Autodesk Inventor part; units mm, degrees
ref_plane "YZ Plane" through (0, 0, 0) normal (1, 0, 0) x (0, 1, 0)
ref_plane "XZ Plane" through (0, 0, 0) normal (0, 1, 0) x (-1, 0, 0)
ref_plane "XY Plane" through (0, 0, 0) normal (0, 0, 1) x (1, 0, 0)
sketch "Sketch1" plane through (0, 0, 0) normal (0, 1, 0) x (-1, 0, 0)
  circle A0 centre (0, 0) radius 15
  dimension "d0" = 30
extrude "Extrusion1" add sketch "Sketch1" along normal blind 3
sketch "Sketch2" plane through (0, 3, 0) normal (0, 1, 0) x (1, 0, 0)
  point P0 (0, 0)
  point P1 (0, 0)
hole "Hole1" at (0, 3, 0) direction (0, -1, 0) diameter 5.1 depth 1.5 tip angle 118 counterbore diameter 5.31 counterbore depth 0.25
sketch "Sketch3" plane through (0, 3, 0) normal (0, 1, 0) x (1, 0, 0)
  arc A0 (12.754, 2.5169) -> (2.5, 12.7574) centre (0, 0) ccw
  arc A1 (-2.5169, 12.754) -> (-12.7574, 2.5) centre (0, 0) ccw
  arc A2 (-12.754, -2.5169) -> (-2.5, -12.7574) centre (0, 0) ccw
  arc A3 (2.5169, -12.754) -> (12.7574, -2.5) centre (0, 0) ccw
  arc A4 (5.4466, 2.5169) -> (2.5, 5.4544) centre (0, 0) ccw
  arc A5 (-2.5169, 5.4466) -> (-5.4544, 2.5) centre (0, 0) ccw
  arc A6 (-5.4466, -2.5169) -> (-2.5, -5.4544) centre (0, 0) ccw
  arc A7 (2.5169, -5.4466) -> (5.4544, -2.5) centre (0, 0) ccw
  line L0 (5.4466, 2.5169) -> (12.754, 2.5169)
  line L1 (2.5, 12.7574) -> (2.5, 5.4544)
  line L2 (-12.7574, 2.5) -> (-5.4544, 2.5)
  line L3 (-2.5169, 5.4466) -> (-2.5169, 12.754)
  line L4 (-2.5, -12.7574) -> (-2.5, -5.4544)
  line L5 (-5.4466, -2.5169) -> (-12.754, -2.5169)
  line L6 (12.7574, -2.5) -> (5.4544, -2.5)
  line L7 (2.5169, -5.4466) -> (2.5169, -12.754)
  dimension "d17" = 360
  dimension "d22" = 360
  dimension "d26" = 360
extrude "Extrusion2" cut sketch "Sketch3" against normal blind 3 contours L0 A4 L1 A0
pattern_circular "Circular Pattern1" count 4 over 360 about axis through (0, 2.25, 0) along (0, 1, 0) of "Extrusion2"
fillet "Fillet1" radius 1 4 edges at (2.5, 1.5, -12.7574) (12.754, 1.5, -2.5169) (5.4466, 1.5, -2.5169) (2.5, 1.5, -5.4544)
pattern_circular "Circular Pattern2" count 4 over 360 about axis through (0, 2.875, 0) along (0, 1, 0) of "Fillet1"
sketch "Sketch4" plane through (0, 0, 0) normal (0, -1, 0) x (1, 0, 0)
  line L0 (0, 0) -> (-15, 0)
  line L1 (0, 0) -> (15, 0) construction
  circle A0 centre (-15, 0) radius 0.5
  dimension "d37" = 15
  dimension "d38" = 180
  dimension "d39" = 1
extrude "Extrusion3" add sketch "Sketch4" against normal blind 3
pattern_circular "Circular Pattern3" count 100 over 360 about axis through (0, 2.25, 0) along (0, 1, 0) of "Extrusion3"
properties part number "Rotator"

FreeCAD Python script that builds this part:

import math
import FreeCAD as App
import Part
import Sketcher

V = App.Vector
Q = App.Units.Quantity


def edges_at(feature, points):
    """Names of the edges that pass closest to the given points."""
    edges = feature.Shape.Edges
    near = lambda p: min(range(len(edges)), key=lambda i: edges[i].distToShape(Part.Vertex(*p))[0])
    return sorted({f"Edge{near(p) + 1}" for p in points})

doc = App.newDocument("Part")
body = doc.addObject("PartDesign::Body", "Body")

# Sketch on XZ plane
sketch1 = body.newObject("Sketcher::SketchObject", "Sketch")
sketch1.AttachmentSupport = (doc.getObject("XZ_Plane"), [""])
sketch1.MapMode = "FlatFace"
sketch1.addGeometry(Part.Circle(V(0, 0, 0), V(0, 0, 1), 15), False)
sketch1.addConstraint(Sketcher.Constraint("Coincident", 0, 3, -1, 1))
sketch1.addConstraint(Sketcher.Constraint("Diameter", 0, Q("30 mm")))
pad1 = body.newObject("PartDesign::Pad", "Pad")
pad1.Profile = sketch1
pad1.Length = 3
pad1.Reversed = True

# Sketch on XZ plane
sketch2 = body.newObject("Sketcher::SketchObject", "Sketch001")
sketch2.AttachmentSupport = (doc.getObject("XZ_Plane"), [""])
sketch2.MapMode = "FlatFace"
sketch2.AttachmentOffset = App.Placement(V(0, 0, -3), App.Rotation())
sketch2.addGeometry(Part.Circle(V(0, 0, 0), V(0, 0, 1), 2.5), False)
sketch2.addConstraint(Sketcher.Constraint("Coincident", 0, 3, -1, 1))
sketch2.addConstraint(Sketcher.Constraint("Diameter", 0, Q("5.1 mm")))
doc.recompute()
hole = body.newObject("PartDesign::Hole", "Hole")
hole.Profile = sketch2
hole.ThreadType = "None"
hole.Diameter = 5.1
hole.DepthType = "Dimension"
hole.Depth = 1.5
hole.DrillPoint = "Angled"
hole.DrillPointAngle = 118
hole.HoleCutType = "Counterbore"
hole.HoleCutDiameter = 5.31
hole.HoleCutDepth = 0.25
hole.Reversed = True

# Sketch on XZ plane
sketch3 = body.newObject("Sketcher::SketchObject", "Sketch002")
sketch3.AttachmentSupport = (doc.getObject("XZ_Plane"), [""])
sketch3.MapMode = "FlatFace"
sketch3.AttachmentOffset = App.Placement(V(0, 0, -3), App.Rotation())
sketch3.addGeometry(Part.LineSegment(V(5.4, -2.5, 0), V(12.8, -2.5, 0)), False)
sketch3.addGeometry(Part.ArcOfCircle(Part.Circle(V(0, 0, 0), V(0, 0, 1), 13), math.radians(-79), math.radians(-11)), False)
sketch3.addGeometry(Part.LineSegment(V(2.5, -12.8, 0), V(2.5, -5.5, 0)), False)
sketch3.addGeometry(Part.ArcOfCircle(Part.Circle(V(0, 0, 0), V(0, 0, 1), 6), math.radians(-65), math.radians(-25)), False)
sketch3.addConstraint(Sketcher.Constraint("Coincident", 0, 2, 1, 2))
sketch3.addConstraint(Sketcher.Constraint("Coincident", 1, 1, 2, 1))
sketch3.addConstraint(Sketcher.Constraint("Coincident", 2, 2, 3, 1))
sketch3.addConstraint(Sketcher.Constraint("Coincident", 3, 2, 0, 1))
sketch3.addConstraint(Sketcher.Constraint("Horizontal", 0))
sketch3.addConstraint(Sketcher.Constraint("Vertical", 2))
sketch3.addConstraint(Sketcher.Constraint("Coincident", 1, 3, -1, 1))
sketch3.addConstraint(Sketcher.Constraint("Coincident", 3, 3, -1, 1))
sketch3.addConstraint(Sketcher.Constraint("Radius", 1, Q("13 mm")))
sketch3.addConstraint(Sketcher.Constraint("Radius", 3, Q("6 mm")))
sketch3.addConstraint(Sketcher.Constraint("DistanceX", -1, 1, 1, 1, Q("2.5 mm")))
sketch3.addConstraint(Sketcher.Constraint("DistanceX", 0, 1, 0, 2, Q("7.3074 mm")))
pocket1 = body.newObject("PartDesign::Pocket", "Pocket")
pocket1.Profile = sketch3
pocket1.Length = 3
pocket1.Reversed = True
doc.recompute()

polarpattern = body.newObject("PartDesign::PolarPattern", "PolarPattern")
polarpattern.Originals = [pocket1]
polarpattern.Axis = (doc.getObject("Y_Axis"), [""])
polarpattern.Angle = 360
polarpattern.Occurrences = 4
body.Tip = polarpattern
doc.recompute()

fillet = body.newObject("PartDesign::Fillet", "Fillet")
fillet.Base = (polarpattern, edges_at(polarpattern, [
    (2.5, 1.5, -12.757),
    (12.754, 1.5, -2.517),
    (5.447, 1.5, -2.517),
    (2.5, 1.5, -5.454),
]))
fillet.Radius = 1
doc.recompute()

polarpattern2 = body.newObject("PartDesign::PolarPattern", "PolarPattern001")
polarpattern2.Originals = [fillet]
polarpattern2.Axis = (doc.getObject("Y_Axis"), [""])
polarpattern2.Angle = 360
polarpattern2.Occurrences = 4
body.Tip = polarpattern2

# Sketch on XZ plane
sketch4 = body.newObject("Sketcher::SketchObject", "Sketch003")
sketch4.AttachmentSupport = (doc.getObject("XZ_Plane"), [""])
sketch4.MapMode = "FlatFace"
sketch4.addGeometry(Part.Circle(V(-15, 0, 0), V(0, 0, 1), 0.5), False)
sketch4.addConstraint(Sketcher.Constraint("PointOnObject", 0, 3, -1))
sketch4.addConstraint(Sketcher.Constraint("Diameter", 0, Q("1 mm")))
sketch4.addConstraint(Sketcher.Constraint("DistanceX", 0, 3, -1, 1, Q("15 mm")))
pad2 = body.newObject("PartDesign::Pad", "Pad001")
pad2.Profile = sketch4
pad2.Length = 3
pad2.Reversed = True
doc.recompute()

polarpattern3 = body.newObject("PartDesign::PolarPattern", "PolarPattern002")
polarpattern3.Originals = [pad2]
polarpattern3.Axis = (doc.getObject("Y_Axis"), [""])
polarpattern3.Angle = 360
polarpattern3.Occurrences = 100
body.Tip = polarpattern3

doc.recompute()
